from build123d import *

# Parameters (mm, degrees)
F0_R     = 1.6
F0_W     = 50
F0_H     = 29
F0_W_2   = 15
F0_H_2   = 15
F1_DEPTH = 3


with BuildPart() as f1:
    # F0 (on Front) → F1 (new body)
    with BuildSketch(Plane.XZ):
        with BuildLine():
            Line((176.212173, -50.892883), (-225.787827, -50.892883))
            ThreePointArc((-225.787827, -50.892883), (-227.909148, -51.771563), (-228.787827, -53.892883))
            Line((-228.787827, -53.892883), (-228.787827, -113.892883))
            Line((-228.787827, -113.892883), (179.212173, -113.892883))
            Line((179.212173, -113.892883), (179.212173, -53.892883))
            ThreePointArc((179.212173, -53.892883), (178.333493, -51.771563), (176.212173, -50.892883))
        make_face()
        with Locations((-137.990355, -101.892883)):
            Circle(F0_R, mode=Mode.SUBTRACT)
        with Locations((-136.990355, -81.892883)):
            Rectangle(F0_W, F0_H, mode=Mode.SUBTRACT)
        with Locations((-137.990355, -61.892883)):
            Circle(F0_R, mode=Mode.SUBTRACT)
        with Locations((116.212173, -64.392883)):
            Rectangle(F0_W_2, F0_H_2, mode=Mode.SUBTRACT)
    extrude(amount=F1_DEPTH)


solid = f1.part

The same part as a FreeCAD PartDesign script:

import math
import FreeCAD as App
import Part
import Sketcher
from FreeCAD import Vector


def add_polygon(sketch, points):
    """Adds a closed chain of lines whose ends are joined by coincident constraints."""
    first, n = sketch.GeometryCount, len(points)
    for a, b in zip(points, points[1:] + points[:1]):
        sketch.addGeometry(Part.LineSegment(App.Vector(*a, 0), App.Vector(*b, 0)), False)
    for i in range(n):
        sketch.addConstraint(Sketcher.Constraint("Coincident", first + i, 2, first + (i + 1) % n, 1))

doc = App.newDocument("Part")
body = doc.addObject("PartDesign::Body", "Body")

# Sketch on XZ plane
sketch1 = doc.addObject("Sketcher::SketchObject", "Sketch")
body.addObject(sketch1)
sketch1.AttachmentSupport = (doc.XZ_Plane, [""])
sketch1.MapMode = "FlatFace"
sketch1.addGeometry(Part.LineSegment(Vector(176.2, -50.9, 0), Vector(-225.8, -50.9, 0)), False)  # 0
sketch1.addGeometry(Part.ArcOfCircle(Part.Circle(Vector(-225.8, -53.9, 0), Vector(0, 0, 1), 3), math.radians(90), math.radians(180)), False)  # 1
sketch1.addGeometry(Part.LineSegment(Vector(-228.8, -53.9, 0), Vector(-228.8, -113.9, 0)), False)  # 2
sketch1.addGeometry(Part.LineSegment(Vector(-228.8, -113.9, 0), Vector(179.2, -113.9, 0)), False)  # 3
sketch1.addGeometry(Part.LineSegment(Vector(179.2, -113.9, 0), Vector(179.2, -53.9, 0)), False)  # 4
sketch1.addGeometry(Part.ArcOfCircle(Part.Circle(Vector(176.2, -53.9, 0), Vector(0, 0, 1), 3), math.radians(0), math.radians(90)), False)  # 5
sketch1.addGeometry(Part.Circle(Vector(-138, -101.9, 0), Vector(0, 0, 1), 1.6), False)  # 6
add_polygon(sketch1, [(-112, -96.4), (-162, -96.4), (-162, -67.4), (-112, -67.4)])  # lines 7-10
sketch1.addGeometry(Part.Circle(Vector(-138, -61.9, 0), Vector(0, 0, 1), 1.6), False)  # 11
add_polygon(sketch1, [(123.7, -71.9), (108.7, -71.9), (108.7, -56.9), (123.7, -56.9)])  # lines 12-15
sketch1.addConstraint(Sketcher.Constraint("Tangent", 0, 2, 1, 1))
sketch1.addConstraint(Sketcher.Constraint("Tangent", 1, 2, 2, 1))
sketch1.addConstraint(Sketcher.Constraint("Coincident", 2, 2, 3, 1))
sketch1.addConstraint(Sketcher.Constraint("Coincident", 3, 2, 4, 1))
sketch1.addConstraint(Sketcher.Constraint("Tangent", 4, 2, 5, 1))
sketch1.addConstraint(Sketcher.Constraint("Tangent", 5, 2, 0, 1))
sketch1.addConstraint(Sketcher.Constraint("Horizontal", 0))
sketch1.addConstraint(Sketcher.Constraint("Vertical", 2))
sketch1.addConstraint(Sketcher.Constraint("Horizontal", 3))
sketch1.addConstraint(Sketcher.Constraint("Vertical", 4))
sketch1.addConstraint(Sketcher.Constraint("Horizontal", 7))
sketch1.addConstraint(Sketcher.Constraint("Vertical", 8))
sketch1.addConstraint(Sketcher.Constraint("Horizontal", 9))
sketch1.addConstraint(Sketcher.Constraint("Vertical", 10))
sketch1.addConstraint(Sketcher.Constraint("Horizontal", 12))
sketch1.addConstraint(Sketcher.Constraint("Vertical", 13))
sketch1.addConstraint(Sketcher.Constraint("Horizontal", 14))
sketch1.addConstraint(Sketcher.Constraint("Vertical", 15))
sketch1.addConstraint(Sketcher.Constraint("Equal", 1, 5))
sketch1.addConstraint(Sketcher.Constraint("Equal", 6, 11))
sketch1.addConstraint(Sketcher.Constraint("Vertical", 6, 3, 11, 3))
sketch1.addConstraint(Sketcher.Constraint("Equal", 14, 13))
sketch1.addConstraint(Sketcher.Constraint("Radius", 1, 2.999999))
sketch1.addConstraint(Sketcher.Constraint("Diameter", 6, 3.2))
sketch1.addConstraint(Sketcher.Constraint("DistanceX", 0, 2, 0, 1, 402.0))
sketch1.addConstraint(Sketcher.Constraint("DistanceX", 7, 2, 7, 1, 50.0))
sketch1.addConstraint(Sketcher.Constraint("DistanceX", 12, 2, 12, 1, 15.0))
sketch1.addConstraint(Sketcher.Constraint("DistanceY", 2, 2, 2, 1, 60.0))
sketch1.addConstraint(Sketcher.Constraint("DistanceY", 8, 1, 8, 2, 29.0))
sketch1.addConstraint(Sketcher.Constraint("DistanceY", 6, 3, 1, 3, 48.000001))
sketch1.addConstraint(Sketcher.Constraint("DistanceY", 6, 3, 11, 3, 40.0))
sketch1.addConstraint(Sketcher.Constraint("DistanceX", 7, 2, 6, 3, 24.0))
sketch1.addConstraint(Sketcher.Constraint("DistanceY", 12, 2, 5, 3, 17.999999))
sketch1.addConstraint(Sketcher.Constraint("DistanceY", 6, 3, 7, 2, 5.5))
sketch1.addConstraint(Sketcher.Constraint("DistanceX", 12, 2, 5, 3, 67.499999))
sketch1.addConstraint(Sketcher.Constraint("DistanceX", -1, 1, 5, 3, 176.212172))
sketch1.addConstraint(Sketcher.Constraint("DistanceX", 0, 2, 11, 3, 87.797472))
sketch1.addConstraint(Sketcher.Constraint("DistanceY", 1, 3, -1, 1, 53.892882))
pad1 = doc.addObject("PartDesign::Pad", "Pad")
body.addObject(pad1)
pad1.Profile = sketch1
pad1.Length = 3

doc.recompute()
